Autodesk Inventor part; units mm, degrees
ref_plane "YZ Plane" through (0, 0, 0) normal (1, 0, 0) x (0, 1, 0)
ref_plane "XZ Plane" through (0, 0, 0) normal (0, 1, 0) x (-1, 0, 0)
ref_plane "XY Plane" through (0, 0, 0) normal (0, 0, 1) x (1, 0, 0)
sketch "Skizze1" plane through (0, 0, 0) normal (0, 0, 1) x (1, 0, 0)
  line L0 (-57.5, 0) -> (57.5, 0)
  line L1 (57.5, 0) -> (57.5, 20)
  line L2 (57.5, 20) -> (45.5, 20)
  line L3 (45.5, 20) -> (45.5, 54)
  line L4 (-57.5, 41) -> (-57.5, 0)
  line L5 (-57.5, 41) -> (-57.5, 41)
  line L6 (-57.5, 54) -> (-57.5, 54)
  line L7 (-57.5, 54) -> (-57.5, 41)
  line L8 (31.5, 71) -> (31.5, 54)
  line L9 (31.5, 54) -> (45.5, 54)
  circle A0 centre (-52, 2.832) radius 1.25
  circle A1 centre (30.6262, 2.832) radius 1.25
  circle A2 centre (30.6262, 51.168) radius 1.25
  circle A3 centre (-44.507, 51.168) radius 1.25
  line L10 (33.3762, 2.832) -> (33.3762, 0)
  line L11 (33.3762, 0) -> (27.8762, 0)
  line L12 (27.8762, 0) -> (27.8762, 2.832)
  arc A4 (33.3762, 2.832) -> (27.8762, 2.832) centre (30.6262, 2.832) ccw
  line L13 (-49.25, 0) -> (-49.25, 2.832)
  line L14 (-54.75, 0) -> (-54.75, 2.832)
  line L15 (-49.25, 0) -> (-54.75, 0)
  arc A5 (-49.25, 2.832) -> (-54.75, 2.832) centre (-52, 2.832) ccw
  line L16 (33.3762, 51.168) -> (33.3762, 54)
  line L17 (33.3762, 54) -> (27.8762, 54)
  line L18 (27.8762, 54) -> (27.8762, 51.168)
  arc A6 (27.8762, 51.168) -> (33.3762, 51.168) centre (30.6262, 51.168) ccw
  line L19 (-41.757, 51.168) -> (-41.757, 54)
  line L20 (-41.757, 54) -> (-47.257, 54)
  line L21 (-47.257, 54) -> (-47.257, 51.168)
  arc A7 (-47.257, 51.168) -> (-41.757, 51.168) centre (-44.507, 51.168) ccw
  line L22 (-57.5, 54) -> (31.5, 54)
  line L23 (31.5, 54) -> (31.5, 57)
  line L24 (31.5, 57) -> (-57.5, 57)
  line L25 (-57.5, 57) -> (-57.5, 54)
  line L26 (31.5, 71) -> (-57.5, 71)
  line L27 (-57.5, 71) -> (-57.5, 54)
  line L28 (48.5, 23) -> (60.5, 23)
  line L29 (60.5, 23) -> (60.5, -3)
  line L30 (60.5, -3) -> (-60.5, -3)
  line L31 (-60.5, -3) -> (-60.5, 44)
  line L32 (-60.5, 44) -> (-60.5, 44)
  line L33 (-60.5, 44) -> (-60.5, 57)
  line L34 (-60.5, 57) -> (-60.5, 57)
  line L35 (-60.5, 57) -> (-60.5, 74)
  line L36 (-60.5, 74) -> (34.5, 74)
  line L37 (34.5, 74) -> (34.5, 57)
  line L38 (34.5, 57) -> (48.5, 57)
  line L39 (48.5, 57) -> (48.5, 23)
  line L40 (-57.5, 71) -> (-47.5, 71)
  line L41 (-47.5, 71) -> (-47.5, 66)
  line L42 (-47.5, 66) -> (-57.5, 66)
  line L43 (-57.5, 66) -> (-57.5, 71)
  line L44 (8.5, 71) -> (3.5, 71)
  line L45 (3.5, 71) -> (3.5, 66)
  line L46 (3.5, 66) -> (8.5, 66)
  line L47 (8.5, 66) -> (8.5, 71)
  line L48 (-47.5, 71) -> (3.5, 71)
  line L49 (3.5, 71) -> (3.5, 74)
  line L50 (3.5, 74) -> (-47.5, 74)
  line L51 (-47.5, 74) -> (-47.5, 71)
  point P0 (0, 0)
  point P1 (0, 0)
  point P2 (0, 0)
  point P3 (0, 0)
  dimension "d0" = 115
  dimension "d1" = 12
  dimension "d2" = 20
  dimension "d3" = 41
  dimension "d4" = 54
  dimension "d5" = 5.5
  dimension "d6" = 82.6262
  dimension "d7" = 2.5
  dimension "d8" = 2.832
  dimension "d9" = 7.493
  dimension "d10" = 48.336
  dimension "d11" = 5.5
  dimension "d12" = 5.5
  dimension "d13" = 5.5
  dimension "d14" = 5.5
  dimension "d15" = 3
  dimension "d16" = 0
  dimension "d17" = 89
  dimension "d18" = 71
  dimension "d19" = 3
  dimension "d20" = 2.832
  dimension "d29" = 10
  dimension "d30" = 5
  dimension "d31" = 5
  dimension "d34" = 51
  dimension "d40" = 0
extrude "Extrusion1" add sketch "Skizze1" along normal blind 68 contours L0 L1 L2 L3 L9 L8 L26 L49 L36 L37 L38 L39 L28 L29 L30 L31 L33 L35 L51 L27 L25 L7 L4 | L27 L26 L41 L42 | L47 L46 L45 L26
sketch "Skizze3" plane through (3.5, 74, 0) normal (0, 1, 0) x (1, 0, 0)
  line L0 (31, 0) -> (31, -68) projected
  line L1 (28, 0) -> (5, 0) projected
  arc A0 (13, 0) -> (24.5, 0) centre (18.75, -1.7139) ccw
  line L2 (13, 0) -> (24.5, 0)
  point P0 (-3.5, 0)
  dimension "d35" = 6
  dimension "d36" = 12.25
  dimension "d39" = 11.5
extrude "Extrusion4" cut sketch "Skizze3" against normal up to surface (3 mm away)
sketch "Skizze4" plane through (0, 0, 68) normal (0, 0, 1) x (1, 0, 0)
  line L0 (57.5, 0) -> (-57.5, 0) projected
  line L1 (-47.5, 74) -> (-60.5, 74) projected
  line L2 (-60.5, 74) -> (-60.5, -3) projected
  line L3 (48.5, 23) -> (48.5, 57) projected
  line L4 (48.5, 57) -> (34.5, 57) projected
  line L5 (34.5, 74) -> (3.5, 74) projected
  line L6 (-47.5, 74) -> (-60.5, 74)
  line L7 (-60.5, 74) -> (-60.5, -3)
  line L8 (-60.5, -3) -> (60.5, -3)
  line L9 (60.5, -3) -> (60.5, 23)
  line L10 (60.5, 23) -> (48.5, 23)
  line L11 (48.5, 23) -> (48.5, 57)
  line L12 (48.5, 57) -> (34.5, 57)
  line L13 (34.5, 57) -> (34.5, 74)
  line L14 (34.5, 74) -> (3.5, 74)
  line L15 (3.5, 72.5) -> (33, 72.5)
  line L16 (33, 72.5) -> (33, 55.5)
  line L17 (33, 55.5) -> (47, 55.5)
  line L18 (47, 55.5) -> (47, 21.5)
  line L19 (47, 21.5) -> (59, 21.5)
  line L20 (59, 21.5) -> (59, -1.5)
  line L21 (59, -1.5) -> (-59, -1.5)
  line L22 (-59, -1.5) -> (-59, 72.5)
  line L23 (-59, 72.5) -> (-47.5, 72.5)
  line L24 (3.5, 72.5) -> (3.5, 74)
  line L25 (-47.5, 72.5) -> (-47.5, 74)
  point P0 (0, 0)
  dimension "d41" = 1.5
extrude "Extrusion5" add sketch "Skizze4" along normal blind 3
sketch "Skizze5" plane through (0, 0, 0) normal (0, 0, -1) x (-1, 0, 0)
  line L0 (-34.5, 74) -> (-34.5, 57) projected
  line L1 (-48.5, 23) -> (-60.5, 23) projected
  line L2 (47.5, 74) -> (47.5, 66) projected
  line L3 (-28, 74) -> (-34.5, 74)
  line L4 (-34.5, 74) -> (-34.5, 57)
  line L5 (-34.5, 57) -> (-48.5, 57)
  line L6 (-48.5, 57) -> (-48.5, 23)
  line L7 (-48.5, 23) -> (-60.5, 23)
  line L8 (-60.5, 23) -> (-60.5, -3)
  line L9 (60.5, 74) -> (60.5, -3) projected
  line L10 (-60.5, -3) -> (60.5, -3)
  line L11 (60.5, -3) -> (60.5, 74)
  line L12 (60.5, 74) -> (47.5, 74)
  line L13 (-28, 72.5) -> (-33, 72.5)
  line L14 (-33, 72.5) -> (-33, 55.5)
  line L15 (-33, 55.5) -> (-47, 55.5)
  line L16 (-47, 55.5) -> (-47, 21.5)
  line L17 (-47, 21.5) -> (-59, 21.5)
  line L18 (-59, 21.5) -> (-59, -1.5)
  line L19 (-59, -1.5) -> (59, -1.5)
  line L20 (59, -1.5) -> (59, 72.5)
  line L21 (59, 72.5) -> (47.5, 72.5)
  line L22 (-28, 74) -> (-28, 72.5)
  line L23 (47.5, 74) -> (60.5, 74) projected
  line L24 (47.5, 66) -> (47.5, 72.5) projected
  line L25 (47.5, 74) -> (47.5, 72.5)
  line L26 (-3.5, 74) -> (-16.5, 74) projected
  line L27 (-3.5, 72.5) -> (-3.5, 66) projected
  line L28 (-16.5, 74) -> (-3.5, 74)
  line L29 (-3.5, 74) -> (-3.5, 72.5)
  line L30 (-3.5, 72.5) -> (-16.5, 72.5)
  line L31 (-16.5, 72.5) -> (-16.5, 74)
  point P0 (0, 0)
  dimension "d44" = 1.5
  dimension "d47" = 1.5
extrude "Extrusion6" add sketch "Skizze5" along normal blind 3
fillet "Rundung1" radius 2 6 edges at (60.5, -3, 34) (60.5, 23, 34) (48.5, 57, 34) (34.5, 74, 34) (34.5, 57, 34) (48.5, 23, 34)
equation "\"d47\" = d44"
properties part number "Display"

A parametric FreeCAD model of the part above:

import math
import FreeCAD as App
import Part
import Sketcher
from FreeCAD import Vector


def edges_at(feature, points):
    """Names of the edges that pass closest to the given points."""
    edges = feature.Shape.Edges
    near = lambda p: min(range(len(edges)), key=lambda i: edges[i].distToShape(Part.Vertex(*p))[0])
    return sorted({f"Edge{near(p) + 1}" for p in points})

doc = App.newDocument("Part")
body = doc.addObject("PartDesign::Body", "Body")

# Sketch on XY plane
sketch1 = body.newObject("Sketcher::SketchObject", "Sketch")
sketch1.AttachmentSupport = (doc.getObject("XY_Plane"), [""])
sketch1.MapMode = "FlatFace"
sketch1.addGeometry([
    Part.LineSegment(Vector(-57.5, 0, 0), Vector(-57.5, 66, 0)),  # 0
    Part.LineSegment(Vector(-57.5, 66, 0), Vector(-47.5, 66, 0)),  # 1
    Part.LineSegment(Vector(-47.5, 66, 0), Vector(-47.5, 74, 0)),  # 2
    Part.LineSegment(Vector(-47.5, 74, 0), Vector(-60.5, 74, 0)),  # 3
    Part.LineSegment(Vector(-60.5, 74, 0), Vector(-60.5, -3, 0)),  # 4
    Part.LineSegment(Vector(-60.5, -3, 0), Vector(60.5, -3, 0)),  # 5
    Part.LineSegment(Vector(60.5, -3, 0), Vector(60.5, 23, 0)),  # 6
    Part.LineSegment(Vector(60.5, 23, 0), Vector(48.5, 23, 0)),  # 7
    Part.LineSegment(Vector(48.5, 23, 0), Vector(48.5, 57, 0)),  # 8
    Part.LineSegment(Vector(48.5, 57, 0), Vector(34.5, 57, 0)),  # 9
    Part.LineSegment(Vector(34.5, 57, 0), Vector(34.5, 74, 0)),  # 10
    Part.LineSegment(Vector(34.5, 74, 0), Vector(3.5, 74, 0)),  # 11
    Part.LineSegment(Vector(3.5, 74, 0), Vector(3.5, 66, 0)),  # 12
    Part.LineSegment(Vector(3.5, 66, 0), Vector(8.5, 66, 0)),  # 13
    Part.LineSegment(Vector(8.5, 66, 0), Vector(8.5, 71, 0)),  # 14
    Part.LineSegment(Vector(8.5, 71, 0), Vector(31.5, 71, 0)),  # 15
    Part.LineSegment(Vector(31.5, 71, 0), Vector(31.5, 54, 0)),  # 16
    Part.LineSegment(Vector(31.5, 54, 0), Vector(45.5, 54, 0)),  # 17
    Part.LineSegment(Vector(45.5, 54, 0), Vector(45.5, 20, 0)),  # 18
    Part.LineSegment(Vector(45.5, 20, 0), Vector(57.5, 20, 0)),  # 19
    Part.LineSegment(Vector(57.5, 20, 0), Vector(57.5, 0, 0)),  # 20
    Part.LineSegment(Vector(57.5, 0, 0), Vector(-57.5, 0, 0)),  # 21
], False)
sketch1.addConstraint([
    Sketcher.Constraint("Coincident", 0, 2, 1, 1),
    Sketcher.Constraint("Coincident", 1, 2, 2, 1),
    Sketcher.Constraint("Coincident", 2, 2, 3, 1),
    Sketcher.Constraint("Coincident", 3, 2, 4, 1),
    Sketcher.Constraint("Coincident", 4, 2, 5, 1),
    Sketcher.Constraint("Coincident", 5, 2, 6, 1),
    Sketcher.Constraint("Coincident", 6, 2, 7, 1),
    Sketcher.Constraint("Coincident", 7, 2, 8, 1),
    Sketcher.Constraint("Coincident", 8, 2, 9, 1),
    Sketcher.Constraint("Coincident", 9, 2, 10, 1),
    Sketcher.Constraint("Coincident", 10, 2, 11, 1),
    Sketcher.Constraint("Coincident", 11, 2, 12, 1),
    Sketcher.Constraint("Coincident", 12, 2, 13, 1),
    Sketcher.Constraint("Coincident", 13, 2, 14, 1),
    Sketcher.Constraint("Coincident", 14, 2, 15, 1),
    Sketcher.Constraint("Coincident", 15, 2, 16, 1),
    Sketcher.Constraint("Coincident", 16, 2, 17, 1),
    Sketcher.Constraint("Coincident", 17, 2, 18, 1),
    Sketcher.Constraint("Coincident", 18, 2, 19, 1),
    Sketcher.Constraint("Coincident", 19, 2, 20, 1),
    Sketcher.Constraint("Coincident", 20, 2, 21, 1),
    Sketcher.Constraint("Coincident", 21, 2, 0, 1),
    Sketcher.Constraint("Vertical", 0),
    Sketcher.Constraint("Horizontal", 1),
    Sketcher.Constraint("Vertical", 2),
    Sketcher.Constraint("Horizontal", 3),
    Sketcher.Constraint("Vertical", 4),
    Sketcher.Constraint("Horizontal", 5),
    Sketcher.Constraint("Vertical", 6),
    Sketcher.Constraint("Horizontal", 7),
    Sketcher.Constraint("Vertical", 8),
    Sketcher.Constraint("Horizontal", 9),
    Sketcher.Constraint("Vertical", 10),
    Sketcher.Constraint("Horizontal", 11),
    Sketcher.Constraint("Vertical", 12),
    Sketcher.Constraint("Horizontal", 13),
    Sketcher.Constraint("Vertical", 14),
    Sketcher.Constraint("Horizontal", 15),
    Sketcher.Constraint("Vertical", 16),
    Sketcher.Constraint("Horizontal", 17),
    Sketcher.Constraint("Vertical", 18),
    Sketcher.Constraint("Horizontal", 19),
    Sketcher.Constraint("Vertical", 20),
    Sketcher.Constraint("Horizontal", 21),
    Sketcher.Constraint("Symmetric", 20, 2, 21, 2, -1, 1),
    Sketcher.Constraint("Horizontal", 3, 2, 10, 2),
    Sketcher.Constraint("Horizontal", 1, 2, 12, 2),
    Sketcher.Constraint("Equal", 9, 17),
    Sketcher.Constraint("Equal", 7, 19),
    Sketcher.Constraint("Equal", 13, 14),
    Sketcher.Constraint("Equal", 10, 16),
    Sketcher.Constraint("Equal", 8, 18),
    Sketcher.Constraint("DistanceX", 1, 1, 1, 2, 10.0),
    Sketcher.Constraint("DistanceX", 7, 2, 7, 1, 12.0),
    Sketcher.Constraint("DistanceX", 13, 1, 13, 2, 5.0),
    Sketcher.Constraint("DistanceX", 21, 2, 21, 1, 115.0),
    Sketcher.Constraint("DistanceY", 20, 2, 20, 1, 20.0),
    Sketcher.Constraint("DistanceY", 4, 2, -1, 1, 3.0),
    Sketcher.Constraint("DistanceY", -1, 1, 14, 2, 71.0),
    Sketcher.Constraint("DistanceY", -1, 1, 16, 2, 54.0),
    Sketcher.Constraint("DistanceX", 3, 2, 0, 2, 3.0),
    Sketcher.Constraint("DistanceX", 2, 2, 11, 2, 51.0),
    Sketcher.Constraint("DistanceY", 14, 2, 11, 2, 3.0),
    Sketcher.Constraint("DistanceX", 15, 2, 10, 2, 3.0),
    Sketcher.Constraint("DistanceX", 9, 2, 9, 1, 14.0),
])
pad1 = body.newObject("PartDesign::Pad", "Pad")
pad1.Profile = sketch1
pad1.Length = 68

# Sketch on XZ plane
sketch2 = body.newObject("Sketcher::SketchObject", "Sketch001")
sketch2.AttachmentSupport = (doc.getObject("XZ_Plane"), [""])
sketch2.MapMode = "FlatFace"
sketch2.AttachmentOffset = App.Placement(Vector(0, 0, -74), App.Rotation())
sketch2.addGeometry([
    Part.ArcOfCircle(Part.Circle(Vector(22.25, 1.7139, 0), Vector(0, 0, 1), 5.999996), math.radians(-16.597717), math.radians(196.597717)),
    Part.LineSegment(Vector(28, 0, 0), Vector(16.5, 0, 0)),
], False)
sketch2.addConstraint([
    Sketcher.Constraint("Coincident", 0, 1, 1, 1),
    Sketcher.Constraint("Coincident", 1, 2, 0, 2),
    Sketcher.Constraint("Horizontal", 1),
    Sketcher.Constraint("PointOnObject", 0, 1, -1),
    Sketcher.Constraint("Radius", 0, 6.0),
    Sketcher.Constraint("DistanceX", 1, 2, 1, 1, 11.5),
    Sketcher.Constraint("DistanceX", -1, 1, 0, 1, 28.0),
])
pocket1 = body.newObject("PartDesign::Pocket", "Pocket")
pocket1.Profile = sketch2
pocket1.Length = 3
pocket1.Reversed = True

# Sketch on XY plane
sketch3 = body.newObject("Sketcher::SketchObject", "Sketch002")
sketch3.AttachmentSupport = (doc.getObject("XY_Plane"), [""])
sketch3.MapMode = "FlatFace"
sketch3.AttachmentOffset = App.Placement(Vector(0, 0, 68), App.Rotation())
sketch3.addGeometry([
    Part.LineSegment(Vector(-47.5, 72.5, 0), Vector(-47.5, 74, 0)),  # 0
    Part.LineSegment(Vector(-47.5, 74, 0), Vector(-60.5, 74, 0)),  # 1
    Part.LineSegment(Vector(-60.5, 74, 0), Vector(-60.5, -3, 0)),  # 2
    Part.LineSegment(Vector(-60.5, -3, 0), Vector(60.5, -3, 0)),  # 3
    Part.LineSegment(Vector(60.5, -3, 0), Vector(60.5, 23, 0)),  # 4
    Part.LineSegment(Vector(60.5, 23, 0), Vector(48.5, 23, 0)),  # 5
    Part.LineSegment(Vector(48.5, 23, 0), Vector(48.5, 57, 0)),  # 6
    Part.LineSegment(Vector(48.5, 57, 0), Vector(34.5, 57, 0)),  # 7
    Part.LineSegment(Vector(34.5, 57, 0), Vector(34.5, 74, 0)),  # 8
    Part.LineSegment(Vector(34.5, 74, 0), Vector(3.5, 74, 0)),  # 9
    Part.LineSegment(Vector(3.5, 74, 0), Vector(3.5, 72.5, 0)),  # 10
    Part.LineSegment(Vector(3.5, 72.5, 0), Vector(33, 72.5, 0)),  # 11
    Part.LineSegment(Vector(33, 72.5, 0), Vector(33, 55.5, 0)),  # 12
    Part.LineSegment(Vector(33, 55.5, 0), Vector(47, 55.5, 0)),  # 13
    Part.LineSegment(Vector(47, 55.5, 0), Vector(47, 21.5, 0)),  # 14
    Part.LineSegment(Vector(47, 21.5, 0), Vector(59, 21.5, 0)),  # 15
    Part.LineSegment(Vector(59, 21.5, 0), Vector(59, -1.5, 0)),  # 16
    Part.LineSegment(Vector(59, -1.5, 0), Vector(-59, -1.5, 0)),  # 17
    Part.LineSegment(Vector(-59, -1.5, 0), Vector(-59, 72.5, 0)),  # 18
    Part.LineSegment(Vector(-59, 72.5, 0), Vector(-47.5, 72.5, 0)),  # 19
], False)
sketch3.addConstraint([
    Sketcher.Constraint("Coincident", 0, 2, 1, 1),
    Sketcher.Constraint("Coincident", 1, 2, 2, 1),
    Sketcher.Constraint("Coincident", 2, 2, 3, 1),
    Sketcher.Constraint("Coincident", 3, 2, 4, 1),
    Sketcher.Constraint("Coincident", 4, 2, 5, 1),
    Sketcher.Constraint("Coincident", 5, 2, 6, 1),
    Sketcher.Constraint("Coincident", 6, 2, 7, 1),
    Sketcher.Constraint("Coincident", 7, 2, 8, 1),
    Sketcher.Constraint("Coincident", 8, 2, 9, 1),
    Sketcher.Constraint("Coincident", 9, 2, 10, 1),
    Sketcher.Constraint("Coincident", 10, 2, 11, 1),
    Sketcher.Constraint("Coincident", 11, 2, 12, 1),
    Sketcher.Constraint("Coincident", 12, 2, 13, 1),
    Sketcher.Constraint("Coincident", 13, 2, 14, 1),
    Sketcher.Constraint("Coincident", 14, 2, 15, 1),
    Sketcher.Constraint("Coincident", 15, 2, 16, 1),
    Sketcher.Constraint("Coincident", 16, 2, 17, 1),
    Sketcher.Constraint("Coincident", 17, 2, 18, 1),
    Sketcher.Constraint("Coincident", 18, 2, 19, 1),
    Sketcher.Constraint("Coincident", 19, 2, 0, 1),
    Sketcher.Constraint("Vertical", 0),
    Sketcher.Constraint("Horizontal", 1),
    Sketcher.Constraint("Vertical", 2),
    Sketcher.Constraint("Horizontal", 3),
    Sketcher.Constraint("Vertical", 4),
    Sketcher.Constraint("Horizontal", 5),
    Sketcher.Constraint("Vertical", 6),
    Sketcher.Constraint("Horizontal", 7),
    Sketcher.Constraint("Vertical", 8),
    Sketcher.Constraint("Horizontal", 9),
    Sketcher.Constraint("Vertical", 10),
    Sketcher.Constraint("Horizontal", 11),
    Sketcher.Constraint("Vertical", 12),
    Sketcher.Constraint("Horizontal", 13),
    Sketcher.Constraint("Vertical", 14),
    Sketcher.Constraint("Horizontal", 15),
    Sketcher.Constraint("Vertical", 16),
    Sketcher.Constraint("Horizontal", 17),
    Sketcher.Constraint("Vertical", 18),
    Sketcher.Constraint("Horizontal", 19),
    Sketcher.Constraint("Horizontal", 1, 2, 8, 2),
    Sketcher.Constraint("Horizontal", 11, 2, 18, 2),
    Sketcher.Constraint("Equal", 7, 13),
    Sketcher.Constraint("Equal", 5, 15),
    Sketcher.Constraint("Equal", 8, 12),
    Sketcher.Constraint("Equal", 6, 14),
    Sketcher.Constraint("DistanceY", 0, 1, 0, 2, 1.5),
    Sketcher.Constraint("DistanceY", 16, 2, -1, 1, 1.5),
    Sketcher.Constraint("DistanceX", 11, 2, 8, 2, 1.5),
    Sketcher.Constraint("DistanceY", 3, 2, 16, 2, 1.5),
    Sketcher.Constraint("DistanceX", 2, 2, 17, 2, 1.5),
    Sketcher.Constraint("DistanceX", 1, 2, 1, 1, 13.0),
    Sketcher.Constraint("DistanceX", 3, 1, 3, 2, 121.0),
    Sketcher.Constraint("DistanceX", 5, 2, 5, 1, 12.0),
    Sketcher.Constraint("DistanceX", 7, 2, 7, 1, 14.0),
    Sketcher.Constraint("DistanceX", 9, 2, 9, 1, 31.0),
    Sketcher.Constraint("DistanceY", 2, 2, 2, 1, 77.0),
    Sketcher.Constraint("DistanceY", 4, 1, 4, 2, 26.0),
    Sketcher.Constraint("DistanceY", 6, 1, 6, 2, 34.0),
    Sketcher.Constraint("DistanceX", -1, 1, 11, 2, 33.0),
])
pad2 = body.newObject("PartDesign::Pad", "Pad001")
pad2.Profile = sketch3
pad2.Length = 3

# Sketch on XY plane
sketch4 = body.newObject("Sketcher::SketchObject", "Sketch003")
sketch4.AttachmentSupport = (doc.getObject("XY_Plane"), [""])
sketch4.MapMode = "FlatFace"
sketch4.addGeometry([
    Part.LineSegment(Vector(28, 74, 0), Vector(34.5, 74, 0)),  # 0
    Part.LineSegment(Vector(34.5, 74, 0), Vector(34.5, 57, 0)),  # 1
    Part.LineSegment(Vector(34.5, 57, 0), Vector(48.5, 57, 0)),  # 2
    Part.LineSegment(Vector(48.5, 57, 0), Vector(48.5, 23, 0)),  # 3
    Part.LineSegment(Vector(48.5, 23, 0), Vector(60.5, 23, 0)),  # 4
    Part.LineSegment(Vector(60.5, 23, 0), Vector(60.5, -3, 0)),  # 5
    Part.LineSegment(Vector(60.5, -3, 0), Vector(-60.5, -3, 0)),  # 6
    Part.LineSegment(Vector(-60.5, -3, 0), Vector(-60.5, 74, 0)),  # 7
    Part.LineSegment(Vector(-60.5, 74, 0), Vector(-47.5, 74, 0)),  # 8
    Part.LineSegment(Vector(-47.5, 74, 0), Vector(-47.5, 72.5, 0)),  # 9
    Part.LineSegment(Vector(-47.5, 72.5, 0), Vector(-59, 72.5, 0)),  # 10
    Part.LineSegment(Vector(-59, 72.5, 0), Vector(-59, -1.5, 0)),  # 11
    Part.LineSegment(Vector(-59, -1.5, 0), Vector(59, -1.5, 0)),  # 12
    Part.LineSegment(Vector(59, -1.5, 0), Vector(59, 21.5, 0)),  # 13
    Part.LineSegment(Vector(59, 21.5, 0), Vector(47, 21.5, 0)),  # 14
    Part.LineSegment(Vector(47, 21.5, 0), Vector(47, 55.5, 0)),  # 15
    Part.LineSegment(Vector(47, 55.5, 0), Vector(33, 55.5, 0)),  # 16
    Part.LineSegment(Vector(33, 55.5, 0), Vector(33, 72.5, 0)),  # 17
    Part.LineSegment(Vector(33, 72.5, 0), Vector(28, 72.5, 0)),  # 18
    Part.LineSegment(Vector(28, 72.5, 0), Vector(28, 74, 0)),  # 19
    Part.LineSegment(Vector(3.5, 72.5, 0), Vector(3.5, 74, 0)),  # 20
    Part.LineSegment(Vector(3.5, 74, 0), Vector(16.5, 74, 0)),  # 21
    Part.LineSegment(Vector(16.5, 74, 0), Vector(16.5, 72.5, 0)),  # 22
    Part.LineSegment(Vector(16.5, 72.5, 0), Vector(3.5, 72.5, 0)),  # 23
], False)
sketch4.addConstraint([
    Sketcher.Constraint("Coincident", 0, 2, 1, 1),
    Sketcher.Constraint("Coincident", 1, 2, 2, 1),
    Sketcher.Constraint("Coincident", 2, 2, 3, 1),
    Sketcher.Constraint("Coincident", 3, 2, 4, 1),
    Sketcher.Constraint("Coincident", 4, 2, 5, 1),
    Sketcher.Constraint("Coincident", 5, 2, 6, 1),
    Sketcher.Constraint("Coincident", 6, 2, 7, 1),
    Sketcher.Constraint("Coincident", 7, 2, 8, 1),
    Sketcher.Constraint("Coincident", 8, 2, 9, 1),
    Sketcher.Constraint("Coincident", 9, 2, 10, 1),
    Sketcher.Constraint("Coincident", 10, 2, 11, 1),
    Sketcher.Constraint("Coincident", 11, 2, 12, 1),
    Sketcher.Constraint("Coincident", 12, 2, 13, 1),
    Sketcher.Constraint("Coincident", 13, 2, 14, 1),
    Sketcher.Constraint("Coincident", 14, 2, 15, 1),
    Sketcher.Constraint("Coincident", 15, 2, 16, 1),
    Sketcher.Constraint("Coincident", 16, 2, 17, 1),
    Sketcher.Constraint("Coincident", 17, 2, 18, 1),
    Sketcher.Constraint("Coincident", 18, 2, 19, 1),
    Sketcher.Constraint("Coincident", 19, 2, 0, 1),
    Sketcher.Constraint("Coincident", 20, 2, 21, 1),
    Sketcher.Constraint("Coincident", 21, 2, 22, 1),
    Sketcher.Constraint("Coincident", 22, 2, 23, 1),
    Sketcher.Constraint("Coincident", 23, 2, 20, 1),
    Sketcher.Constraint("Horizontal", 0),
    Sketcher.Constraint("Vertical", 1),
    Sketcher.Constraint("Horizontal", 2),
    Sketcher.Constraint("Vertical", 3),
    Sketcher.Constraint("Horizontal", 4),
    Sketcher.Constraint("Vertical", 5),
    Sketcher.Constraint("Horizontal", 6),
    Sketcher.Constraint("Vertical", 7),
    Sketcher.Constraint("Horizontal", 8),
    Sketcher.Constraint("Vertical", 9),
    Sketcher.Constraint("Horizontal", 10),
    Sketcher.Constraint("Vertical", 11),
    Sketcher.Constraint("Horizontal", 12),
    Sketcher.Constraint("Vertical", 13),
    Sketcher.Constraint("Horizontal", 14),
    Sketcher.Constraint("Vertical", 15),
    Sketcher.Constraint("Horizontal", 16),
    Sketcher.Constraint("Vertical", 17),
    Sketcher.Constraint("Horizontal", 18),
    Sketcher.Constraint("Vertical", 19),
    Sketcher.Constraint("Vertical", 20),
    Sketcher.Constraint("Horizontal", 21),
    Sketcher.Constraint("Vertical", 22),
    Sketcher.Constraint("Horizontal", 23),
    Sketcher.Constraint("Horizontal", 0, 2, 7, 2),
    Sketcher.Constraint("Horizontal", 10, 2, 17, 2),
    Sketcher.Constraint("Horizontal", 19, 2, 20, 2),
    Sketcher.Constraint("Horizontal", 18, 2, 22, 2),
    Sketcher.Constraint("Equal", 4, 14),
    Sketcher.Constraint("Equal", 2, 16),
    Sketcher.Constraint("Equal", 8, 21),
    Sketcher.Constraint("Equal", 3, 15),
    Sketcher.Constraint("Equal", 1, 17),
    Sketcher.Constraint("DistanceY", 9, 2, 9, 1, 1.5),
    Sketcher.Constraint("DistanceY", 11, 2, -1, 1, 1.5),
    Sketcher.Constraint("DistanceX", 7, 2, 10, 2, 1.5),
    Sketcher.Constraint("DistanceY", 6, 2, 11, 2, 1.5),
    Sketcher.Constraint("DistanceX", 12, 2, 5, 2, 1.5),
    Sketcher.Constraint("DistanceX", 2, 1, 2, 2, 14.0),
    Sketcher.Constraint("DistanceX", 4, 1, 4, 2, 12.0),
    Sketcher.Constraint("DistanceX", 6, 2, 6, 1, 121.0),
    Sketcher.Constraint("DistanceX", 8, 1, 8, 2, 13.0),
    Sketcher.Constraint("DistanceX", 18, 2, 18, 1, 5.0),
    Sketcher.Constraint("DistanceY", 1, 2, 1, 1, 17.0),
    Sketcher.Constraint("DistanceY", 3, 2, 3, 1, 34.0),
    Sketcher.Constraint("DistanceY", 5, 2, 5, 1, 26.0),
    Sketcher.Constraint("DistanceX", 10, 2, -1, 1, 59.0),
    Sketcher.Constraint("DistanceX", 20, 2, 0, 2, 31.0),
])
pad3 = body.newObject("PartDesign::Pad", "Pad002")
pad3.Profile = sketch4
pad3.Length = 3
pad3.Reversed = True
doc.recompute()

fillet = body.newObject("PartDesign::Fillet", "Fillet")
fillet.Base = (pad3, edges_at(pad3, [
    (60.5, -3, 34),
    (60.5, 23, 34),
    (48.5, 57, 34),
    (34.5, 74, 34),
    (34.5, 57, 34),
    (48.5, 23, 34),
]))
fillet.Radius = 2

doc.recompute()
